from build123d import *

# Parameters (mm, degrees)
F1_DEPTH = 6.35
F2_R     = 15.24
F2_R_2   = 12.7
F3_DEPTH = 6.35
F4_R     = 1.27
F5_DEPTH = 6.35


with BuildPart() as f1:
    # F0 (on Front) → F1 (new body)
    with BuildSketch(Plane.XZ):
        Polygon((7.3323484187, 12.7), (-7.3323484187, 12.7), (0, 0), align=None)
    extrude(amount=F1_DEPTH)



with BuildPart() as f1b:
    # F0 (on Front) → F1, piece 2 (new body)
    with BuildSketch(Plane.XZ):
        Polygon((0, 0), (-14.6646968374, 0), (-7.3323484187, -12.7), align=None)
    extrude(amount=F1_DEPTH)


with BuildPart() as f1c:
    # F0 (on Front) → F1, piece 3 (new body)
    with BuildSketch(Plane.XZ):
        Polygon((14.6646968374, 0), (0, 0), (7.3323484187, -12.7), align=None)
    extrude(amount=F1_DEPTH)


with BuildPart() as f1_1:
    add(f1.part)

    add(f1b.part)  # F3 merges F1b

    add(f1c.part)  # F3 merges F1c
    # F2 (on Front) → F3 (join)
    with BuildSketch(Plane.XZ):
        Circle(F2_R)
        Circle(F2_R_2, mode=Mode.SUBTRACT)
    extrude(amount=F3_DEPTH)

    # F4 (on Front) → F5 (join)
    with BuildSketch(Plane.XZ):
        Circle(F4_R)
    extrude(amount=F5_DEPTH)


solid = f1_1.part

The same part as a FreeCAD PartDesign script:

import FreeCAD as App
import Part
import Sketcher
Q = App.Units.Quantity

doc = App.newDocument("Part")
params = doc.addObject("Spreadsheet::Sheet", "Params")
for row, (alias, value) in enumerate([
    ("pad1_length", "0.25 in"),
    ("pad2_length", "0.25 in"),
    ("pad3_length", "0.25 in"),
    ("sketch4_diameter", "1 in"),
    ("sketch4_diameter2", "1.2 in"),
    ("pad4_length", "0.25 in"),
    ("sketch5_diameter", "0.1 in"),
    ("pad5_length", "0.25 in"),
], start=1):
    params.set(f"A{row}", alias)
    params.set(f"B{row}", "=" + value)
    params.setAlias(f"B{row}", alias)

body = doc.addObject("PartDesign::Body", "Body")

sketch1 = body.newObject("Sketcher::SketchObject", "Sketch")
sketch1.AttachmentSupport = (doc.getObject("XZ_Plane"), [""])
sketch1.MapMode = "FlatFace"
sketch1.addGeometry([
    Part.LineSegment(App.Vector(7.332348, 12.7, 0), App.Vector(-7.332348, 12.7, 0)),
    Part.LineSegment(App.Vector(-7.332348, 12.7, 0), App.Vector(0, 0, 0)),
    Part.LineSegment(App.Vector(0, 0, 0), App.Vector(7.332348, 12.7, 0)),
], False)
sketch1.addConstraint([
    Sketcher.Constraint("Coincident", 0, 2, 1, 1),
    Sketcher.Constraint("Coincident", 1, 2, 2, 1),
    Sketcher.Constraint("Coincident", 2, 2, 0, 1),
    Sketcher.Constraint("Horizontal", 0),
    Sketcher.Constraint("Coincident", 1, 2, -1, 1),
    Sketcher.Constraint("Equal", 1, 2),
    Sketcher.Constraint("Angle", 1, Q("-60 deg")),
    Sketcher.Constraint("DistanceY", -1, 1, 0, 2, Q("0.5 in")),
])
pad1 = body.newObject("PartDesign::Pad", "Pad")
pad1.Profile = sketch1
pad1.setExpression("Length", "Params.pad1_length")
body2 = doc.addObject("PartDesign::Body", "Body001")

sketch2 = body2.newObject("Sketcher::SketchObject", "Sketch001")
sketch2.AttachmentSupport = (doc.getObject("XZ_Plane001"), [""])
sketch2.MapMode = "FlatFace"
sketch2.addGeometry([
    Part.LineSegment(App.Vector(0, 0, 0), App.Vector(-14.664697, 0, 0)),
    Part.LineSegment(App.Vector(-14.664697, 0, 0), App.Vector(-7.332348, -12.7, 0)),
    Part.LineSegment(App.Vector(-7.332348, -12.7, 0), App.Vector(0, 0, 0)),
], False)
sketch2.addConstraint([
    Sketcher.Constraint("Coincident", 0, 2, 1, 1),
    Sketcher.Constraint("Coincident", 1, 2, 2, 1),
    Sketcher.Constraint("Coincident", 2, 2, 0, 1),
    Sketcher.Constraint("Horizontal", 0),
    Sketcher.Constraint("Coincident", 2, 2, -1, 1),
    Sketcher.Constraint("Equal", 1, 2),
    Sketcher.Constraint("Angle", 1, Q("-60 deg")),
    Sketcher.Constraint("DistanceY", 1, 2, -1, 1, Q("0.5 in")),
])
pad2 = body2.newObject("PartDesign::Pad", "Pad001")
pad2.Profile = sketch2
pad2.setExpression("Length", "Params.pad2_length")
body3 = doc.addObject("PartDesign::Body", "Body002")

sketch3 = body3.newObject("Sketcher::SketchObject", "Sketch002")
sketch3.AttachmentSupport = (doc.getObject("XZ_Plane002"), [""])
sketch3.MapMode = "FlatFace"
sketch3.addGeometry([
    Part.LineSegment(App.Vector(14.664697, 0, 0), App.Vector(0, 0, 0)),
    Part.LineSegment(App.Vector(0, 0, 0), App.Vector(7.332348, -12.7, 0)),
    Part.LineSegment(App.Vector(7.332348, -12.7, 0), App.Vector(14.664697, 0, 0)),
], False)
sketch3.addConstraint([
    Sketcher.Constraint("Coincident", 0, 2, 1, 1),
    Sketcher.Constraint("Coincident", 1, 2, 2, 1),
    Sketcher.Constraint("Coincident", 2, 2, 0, 1),
    Sketcher.Constraint("Horizontal", 0),
    Sketcher.Constraint("Coincident", 0, 2, -1, 1),
    Sketcher.Constraint("Equal", 1, 2),
    Sketcher.Constraint("Angle", 1, Q("-60 deg")),
    Sketcher.Constraint("DistanceY", 1, 2, -1, 1, Q("0.5 in")),
])
pad3 = body3.newObject("PartDesign::Pad", "Pad002")
pad3.Profile = sketch3
pad3.setExpression("Length", "Params.pad3_length")
body.AllowCompound = True
doc.recompute()

boolean = body.newObject("PartDesign::Boolean", "Boolean")
boolean.Type = "Fuse"
boolean.addObjects([body2])
doc.recompute()

boolean2 = body.newObject("PartDesign::Boolean", "Boolean001")
boolean2.Type = "Fuse"
boolean2.addObjects([body3])

sketch4 = body.newObject("Sketcher::SketchObject", "Sketch003")
sketch4.AttachmentSupport = (doc.getObject("XZ_Plane"), [""])
sketch4.MapMode = "FlatFace"
sketch4.addGeometry([
    Part.Circle(App.Vector(0, 0, 0), App.Vector(0, 0, 1), 15.24),
    Part.Circle(App.Vector(0, 0, 0), App.Vector(0, 0, 1), 12.7),
], False)
sketch4.addConstraint([
    Sketcher.Constraint("Coincident", 0, 3, -1, 1),
    Sketcher.Constraint("Coincident", 1, 3, -1, 1),
    Sketcher.Constraint("Diameter", 1, Q("1 in")),
    Sketcher.Constraint("Diameter", 0, Q("1.2 in")),
])
sketch4.setExpression("Constraints[2]", "Params.sketch4_diameter")
sketch4.setExpression("Constraints[3]", "Params.sketch4_diameter2")
pad4 = body.newObject("PartDesign::Pad", "Pad003")
pad4.Profile = sketch4
pad4.setExpression("Length", "Params.pad4_length")

sketch5 = body.newObject("Sketcher::SketchObject", "Sketch004")
sketch5.AttachmentSupport = (doc.getObject("XZ_Plane"), [""])
sketch5.MapMode = "FlatFace"
sketch5.addGeometry(Part.Circle(App.Vector(0, 0, 0), App.Vector(0, 0, 1), 1.27), False)
sketch5.addConstraint([
    Sketcher.Constraint("Coincident", 0, 3, -1, 1),
    Sketcher.Constraint("Diameter", 0, Q("0.1 in")),
])
sketch5.setExpression("Constraints[1]", "Params.sketch5_diameter")
pad5 = body.newObject("PartDesign::Pad", "Pad004")
pad5.Profile = sketch5
pad5.setExpression("Length", "Params.pad5_length")

doc.recompute()
